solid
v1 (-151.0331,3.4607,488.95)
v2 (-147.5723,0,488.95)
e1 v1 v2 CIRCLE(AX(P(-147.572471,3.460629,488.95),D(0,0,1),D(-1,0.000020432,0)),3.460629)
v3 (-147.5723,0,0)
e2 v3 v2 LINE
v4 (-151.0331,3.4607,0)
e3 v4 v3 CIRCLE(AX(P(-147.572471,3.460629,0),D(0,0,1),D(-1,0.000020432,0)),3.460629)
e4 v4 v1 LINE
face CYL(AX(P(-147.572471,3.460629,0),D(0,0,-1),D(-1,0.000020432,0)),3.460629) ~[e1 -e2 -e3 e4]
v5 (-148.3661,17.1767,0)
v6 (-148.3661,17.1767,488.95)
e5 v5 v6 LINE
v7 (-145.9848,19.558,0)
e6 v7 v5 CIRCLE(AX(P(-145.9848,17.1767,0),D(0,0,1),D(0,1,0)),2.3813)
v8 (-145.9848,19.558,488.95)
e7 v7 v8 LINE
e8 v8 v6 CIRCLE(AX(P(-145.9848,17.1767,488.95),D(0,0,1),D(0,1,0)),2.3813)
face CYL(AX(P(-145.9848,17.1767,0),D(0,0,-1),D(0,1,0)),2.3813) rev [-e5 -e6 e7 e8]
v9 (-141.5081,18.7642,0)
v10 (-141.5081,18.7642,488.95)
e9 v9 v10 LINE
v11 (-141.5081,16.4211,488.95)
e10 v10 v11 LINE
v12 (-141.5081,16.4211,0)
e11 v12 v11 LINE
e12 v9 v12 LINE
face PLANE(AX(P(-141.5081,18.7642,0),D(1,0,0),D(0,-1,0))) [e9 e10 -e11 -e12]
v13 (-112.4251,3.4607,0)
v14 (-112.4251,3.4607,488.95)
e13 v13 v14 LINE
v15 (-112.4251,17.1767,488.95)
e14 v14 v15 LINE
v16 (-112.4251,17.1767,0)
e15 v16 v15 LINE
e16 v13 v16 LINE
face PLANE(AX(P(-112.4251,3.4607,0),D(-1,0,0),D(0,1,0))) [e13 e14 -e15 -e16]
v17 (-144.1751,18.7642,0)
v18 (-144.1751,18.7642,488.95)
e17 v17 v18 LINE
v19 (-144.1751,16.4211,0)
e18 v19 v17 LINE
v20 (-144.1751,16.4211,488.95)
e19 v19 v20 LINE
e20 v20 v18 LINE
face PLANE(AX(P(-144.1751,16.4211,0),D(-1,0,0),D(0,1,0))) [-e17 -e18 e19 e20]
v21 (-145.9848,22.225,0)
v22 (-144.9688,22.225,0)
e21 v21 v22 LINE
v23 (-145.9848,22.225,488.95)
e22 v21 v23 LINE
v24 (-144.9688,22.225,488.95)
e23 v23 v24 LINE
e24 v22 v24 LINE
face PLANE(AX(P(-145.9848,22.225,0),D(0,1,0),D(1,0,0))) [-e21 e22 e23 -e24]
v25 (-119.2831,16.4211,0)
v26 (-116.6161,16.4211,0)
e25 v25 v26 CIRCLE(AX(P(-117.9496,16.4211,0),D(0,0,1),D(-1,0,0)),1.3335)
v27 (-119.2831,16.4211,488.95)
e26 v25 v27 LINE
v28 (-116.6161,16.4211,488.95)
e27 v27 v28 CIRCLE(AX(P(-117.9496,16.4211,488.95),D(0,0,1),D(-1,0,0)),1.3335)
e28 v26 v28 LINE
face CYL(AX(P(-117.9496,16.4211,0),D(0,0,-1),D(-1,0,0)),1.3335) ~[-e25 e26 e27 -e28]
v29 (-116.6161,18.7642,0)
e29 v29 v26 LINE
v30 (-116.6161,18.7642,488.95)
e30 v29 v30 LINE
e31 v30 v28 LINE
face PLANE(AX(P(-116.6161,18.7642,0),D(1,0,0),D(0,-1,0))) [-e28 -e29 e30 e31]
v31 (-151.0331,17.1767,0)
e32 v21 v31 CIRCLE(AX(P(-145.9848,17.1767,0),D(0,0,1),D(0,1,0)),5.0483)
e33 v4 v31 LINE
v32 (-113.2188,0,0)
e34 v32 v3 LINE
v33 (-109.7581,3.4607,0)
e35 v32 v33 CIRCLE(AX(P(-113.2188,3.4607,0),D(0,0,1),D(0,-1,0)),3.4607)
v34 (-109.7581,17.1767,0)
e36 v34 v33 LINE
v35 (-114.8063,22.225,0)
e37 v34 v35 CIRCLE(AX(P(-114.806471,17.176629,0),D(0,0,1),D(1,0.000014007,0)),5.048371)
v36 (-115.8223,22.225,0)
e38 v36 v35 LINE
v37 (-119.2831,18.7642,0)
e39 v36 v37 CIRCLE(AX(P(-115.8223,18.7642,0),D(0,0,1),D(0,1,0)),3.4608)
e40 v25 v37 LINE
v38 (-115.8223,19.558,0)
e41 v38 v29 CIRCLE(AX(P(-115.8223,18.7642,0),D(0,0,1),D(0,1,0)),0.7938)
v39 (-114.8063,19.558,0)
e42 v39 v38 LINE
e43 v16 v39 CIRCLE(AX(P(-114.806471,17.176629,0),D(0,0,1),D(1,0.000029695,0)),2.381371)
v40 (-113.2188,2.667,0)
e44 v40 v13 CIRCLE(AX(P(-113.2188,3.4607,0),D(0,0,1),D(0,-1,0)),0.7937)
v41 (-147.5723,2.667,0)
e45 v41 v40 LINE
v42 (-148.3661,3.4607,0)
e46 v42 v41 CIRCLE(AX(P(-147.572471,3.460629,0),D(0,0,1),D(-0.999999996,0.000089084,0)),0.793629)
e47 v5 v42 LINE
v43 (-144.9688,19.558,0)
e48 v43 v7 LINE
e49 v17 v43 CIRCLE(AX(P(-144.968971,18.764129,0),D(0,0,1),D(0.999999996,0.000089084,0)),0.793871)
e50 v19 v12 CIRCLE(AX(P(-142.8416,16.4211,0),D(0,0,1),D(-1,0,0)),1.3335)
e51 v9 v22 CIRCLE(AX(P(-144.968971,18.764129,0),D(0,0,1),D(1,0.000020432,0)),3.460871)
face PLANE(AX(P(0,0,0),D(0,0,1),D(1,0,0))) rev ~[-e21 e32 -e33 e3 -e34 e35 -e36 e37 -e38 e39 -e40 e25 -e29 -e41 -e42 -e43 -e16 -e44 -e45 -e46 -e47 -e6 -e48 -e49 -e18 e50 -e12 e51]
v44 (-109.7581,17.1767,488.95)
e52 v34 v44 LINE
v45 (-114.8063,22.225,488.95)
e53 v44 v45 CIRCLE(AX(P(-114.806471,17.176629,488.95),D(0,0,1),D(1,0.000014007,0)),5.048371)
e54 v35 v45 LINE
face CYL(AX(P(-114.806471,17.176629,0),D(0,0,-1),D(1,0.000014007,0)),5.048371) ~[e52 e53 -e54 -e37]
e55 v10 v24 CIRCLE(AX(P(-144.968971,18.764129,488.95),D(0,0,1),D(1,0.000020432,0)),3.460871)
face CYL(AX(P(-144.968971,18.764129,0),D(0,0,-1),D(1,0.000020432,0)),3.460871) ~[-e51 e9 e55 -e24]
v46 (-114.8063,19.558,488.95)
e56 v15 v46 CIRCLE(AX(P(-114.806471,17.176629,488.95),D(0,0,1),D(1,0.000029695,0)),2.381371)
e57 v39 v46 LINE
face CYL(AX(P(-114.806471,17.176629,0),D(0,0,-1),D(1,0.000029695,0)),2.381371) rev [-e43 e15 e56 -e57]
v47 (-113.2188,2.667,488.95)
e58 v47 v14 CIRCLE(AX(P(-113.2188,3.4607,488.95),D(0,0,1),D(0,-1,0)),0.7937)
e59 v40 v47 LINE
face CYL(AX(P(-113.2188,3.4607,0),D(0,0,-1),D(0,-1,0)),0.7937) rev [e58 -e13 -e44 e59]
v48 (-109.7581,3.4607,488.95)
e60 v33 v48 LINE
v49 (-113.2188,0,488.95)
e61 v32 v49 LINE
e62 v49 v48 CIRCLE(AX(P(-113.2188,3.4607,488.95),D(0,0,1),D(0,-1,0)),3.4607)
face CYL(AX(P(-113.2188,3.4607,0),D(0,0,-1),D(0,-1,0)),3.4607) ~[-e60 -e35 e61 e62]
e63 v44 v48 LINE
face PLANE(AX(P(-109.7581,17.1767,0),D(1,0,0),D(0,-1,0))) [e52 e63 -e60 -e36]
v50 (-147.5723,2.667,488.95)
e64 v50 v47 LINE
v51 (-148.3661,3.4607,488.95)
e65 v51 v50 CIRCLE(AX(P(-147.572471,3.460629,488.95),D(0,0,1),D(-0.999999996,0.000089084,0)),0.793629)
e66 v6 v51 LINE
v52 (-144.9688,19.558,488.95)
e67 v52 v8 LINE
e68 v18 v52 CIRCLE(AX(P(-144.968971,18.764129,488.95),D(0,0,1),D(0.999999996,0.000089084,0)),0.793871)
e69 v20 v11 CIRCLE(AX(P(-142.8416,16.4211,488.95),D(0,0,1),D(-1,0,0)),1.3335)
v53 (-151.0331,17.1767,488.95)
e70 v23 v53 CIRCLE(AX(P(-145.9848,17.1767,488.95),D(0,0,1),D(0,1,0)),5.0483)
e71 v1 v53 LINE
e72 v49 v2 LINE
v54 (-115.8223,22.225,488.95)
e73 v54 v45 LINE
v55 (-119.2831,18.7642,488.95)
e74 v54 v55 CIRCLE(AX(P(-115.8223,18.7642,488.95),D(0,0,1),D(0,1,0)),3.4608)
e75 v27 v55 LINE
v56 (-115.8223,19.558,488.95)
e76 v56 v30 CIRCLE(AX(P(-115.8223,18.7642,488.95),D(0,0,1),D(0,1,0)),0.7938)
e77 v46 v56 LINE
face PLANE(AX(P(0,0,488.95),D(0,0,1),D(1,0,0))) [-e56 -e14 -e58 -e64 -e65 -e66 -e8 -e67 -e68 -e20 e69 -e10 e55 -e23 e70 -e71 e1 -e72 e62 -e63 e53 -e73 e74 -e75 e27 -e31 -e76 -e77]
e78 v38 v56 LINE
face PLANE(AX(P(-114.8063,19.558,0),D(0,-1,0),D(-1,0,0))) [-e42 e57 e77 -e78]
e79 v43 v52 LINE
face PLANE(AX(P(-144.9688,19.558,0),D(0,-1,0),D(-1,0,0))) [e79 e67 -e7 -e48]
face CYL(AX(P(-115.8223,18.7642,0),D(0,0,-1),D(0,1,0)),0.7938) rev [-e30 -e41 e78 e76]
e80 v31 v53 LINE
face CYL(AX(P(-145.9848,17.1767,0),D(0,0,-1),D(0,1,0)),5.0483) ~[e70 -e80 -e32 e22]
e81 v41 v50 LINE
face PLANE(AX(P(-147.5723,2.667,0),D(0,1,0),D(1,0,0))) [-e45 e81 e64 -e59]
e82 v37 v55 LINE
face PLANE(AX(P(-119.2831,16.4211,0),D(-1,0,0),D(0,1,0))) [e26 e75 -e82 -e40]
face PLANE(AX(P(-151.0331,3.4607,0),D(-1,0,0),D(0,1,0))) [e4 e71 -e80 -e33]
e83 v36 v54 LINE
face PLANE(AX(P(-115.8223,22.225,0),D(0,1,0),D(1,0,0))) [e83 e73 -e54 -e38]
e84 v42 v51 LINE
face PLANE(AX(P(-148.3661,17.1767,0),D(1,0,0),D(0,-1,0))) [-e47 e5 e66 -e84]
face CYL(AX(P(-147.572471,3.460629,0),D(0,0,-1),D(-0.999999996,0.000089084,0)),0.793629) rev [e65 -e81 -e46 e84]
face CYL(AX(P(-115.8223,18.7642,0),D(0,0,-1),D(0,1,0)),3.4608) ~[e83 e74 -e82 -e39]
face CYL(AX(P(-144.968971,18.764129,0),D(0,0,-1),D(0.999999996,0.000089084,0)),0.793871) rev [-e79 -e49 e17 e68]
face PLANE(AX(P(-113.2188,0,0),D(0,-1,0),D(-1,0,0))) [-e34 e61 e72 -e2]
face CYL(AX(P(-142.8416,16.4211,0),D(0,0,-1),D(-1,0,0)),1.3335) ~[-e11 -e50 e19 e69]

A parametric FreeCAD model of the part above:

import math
import FreeCAD as App
import Part
import Sketcher
Q = App.Units.Quantity

doc = App.newDocument("Part")
body = doc.addObject("PartDesign::Body", "Body")

# Sketch on XY plane
sketch1 = body.newObject("Sketcher::SketchObject", "Sketch")
sketch1.AttachmentSupport = (doc.getObject("XY_Plane"), [""])
sketch1.MapMode = "FlatFace"
sketch1.addGeometry(Part.LineSegment(App.Vector(-147.6, 0, 0), App.Vector(-113.2, 0, 0)), False)
sketch1.addGeometry(Part.ArcOfCircle(Part.Circle(App.Vector(-113.2, 3.5, 0), App.Vector(0, 0, 1), 3.5), math.radians(-90), math.radians(0)), False)
sketch1.addGeometry(Part.LineSegment(App.Vector(-109.8, 3.5, 0), App.Vector(-109.8, 17.2, 0)), False)
sketch1.addGeometry(Part.ArcOfCircle(Part.Circle(App.Vector(-114.8, 17.2, 0), App.Vector(0, 0, 1), 5), math.radians(0), math.radians(90)), False)
sketch1.addGeometry(Part.LineSegment(App.Vector(-114.8, 22.2, 0), App.Vector(-115.8, 22.2, 0)), False)
sketch1.addGeometry(Part.ArcOfCircle(Part.Circle(App.Vector(-115.8, 18.8, 0), App.Vector(0, 0, 1), 3.5), math.radians(90), math.radians(180)), False)
sketch1.addGeometry(Part.LineSegment(App.Vector(-119.3, 18.8, 0), App.Vector(-119.3, 16.4, 0)), False)
sketch1.addGeometry(Part.ArcOfCircle(Part.Circle(App.Vector(-117.9, 16.4, 0), App.Vector(0, 0, 1), 1.3), math.radians(180), math.radians(360)), False)
sketch1.addGeometry(Part.LineSegment(App.Vector(-116.6, 16.4, 0), App.Vector(-116.6, 18.8, 0)), False)
sketch1.addGeometry(Part.ArcOfCircle(Part.Circle(App.Vector(-115.8, 18.8, 0), App.Vector(0, 0, 1), 0.8), math.radians(90), math.radians(180)), False)
sketch1.addGeometry(Part.LineSegment(App.Vector(-115.8, 19.6, 0), App.Vector(-114.8, 19.6, 0)), False)
sketch1.addGeometry(Part.ArcOfCircle(Part.Circle(App.Vector(-114.8, 17.2, 0), App.Vector(0, 0, 1), 2.4), math.radians(0), math.radians(90)), False)
sketch1.addGeometry(Part.LineSegment(App.Vector(-112.4, 17.2, 0), App.Vector(-112.4, 3.5, 0)), False)
sketch1.addGeometry(Part.ArcOfCircle(Part.Circle(App.Vector(-113.2, 3.5, 0), App.Vector(0, 0, 1), 0.8), math.radians(-90), math.radians(0)), False)
sketch1.addGeometry(Part.LineSegment(App.Vector(-113.2, 2.7, 0), App.Vector(-147.6, 2.7, 0)), False)
sketch1.addGeometry(Part.ArcOfCircle(Part.Circle(App.Vector(-147.6, 3.5, 0), App.Vector(0, 0, 1), 0.8), math.radians(180), math.radians(270)), False)
sketch1.addGeometry(Part.LineSegment(App.Vector(-148.4, 3.5, 0), App.Vector(-148.4, 17.2, 0)), False)
sketch1.addGeometry(Part.ArcOfCircle(Part.Circle(App.Vector(-146, 17.2, 0), App.Vector(0, 0, 1), 2.4), math.radians(90), math.radians(180)), False)
sketch1.addGeometry(Part.LineSegment(App.Vector(-146, 19.6, 0), App.Vector(-145, 19.6, 0)), False)
sketch1.addGeometry(Part.ArcOfCircle(Part.Circle(App.Vector(-145, 18.8, 0), App.Vector(0, 0, 1), 0.8), math.radians(0), math.radians(90)), False)
sketch1.addGeometry(Part.LineSegment(App.Vector(-144.2, 18.8, 0), App.Vector(-144.2, 16.4, 0)), False)
sketch1.addGeometry(Part.ArcOfCircle(Part.Circle(App.Vector(-142.8, 16.4, 0), App.Vector(0, 0, 1), 1.3), math.radians(180), math.radians(360)), False)
sketch1.addGeometry(Part.LineSegment(App.Vector(-141.5, 16.4, 0), App.Vector(-141.5, 18.8, 0)), False)
sketch1.addGeometry(Part.ArcOfCircle(Part.Circle(App.Vector(-145, 18.8, 0), App.Vector(0, 0, 1), 3.5), math.radians(0), math.radians(90)), False)
sketch1.addGeometry(Part.LineSegment(App.Vector(-145, 22.2, 0), App.Vector(-146, 22.2, 0)), False)
sketch1.addGeometry(Part.ArcOfCircle(Part.Circle(App.Vector(-146, 17.2, 0), App.Vector(0, 0, 1), 5), math.radians(90), math.radians(180)), False)
sketch1.addGeometry(Part.LineSegment(App.Vector(-151, 17.2, 0), App.Vector(-151, 3.5, 0)), False)
sketch1.addGeometry(Part.ArcOfCircle(Part.Circle(App.Vector(-147.6, 3.5, 0), App.Vector(0, 0, 1), 3.5), math.radians(180), math.radians(270)), False)
sketch1.addConstraint(Sketcher.Constraint("Tangent", 0, 2, 1, 1))
sketch1.addConstraint(Sketcher.Constraint("Tangent", 1, 2, 2, 1))
sketch1.addConstraint(Sketcher.Constraint("Tangent", 2, 2, 3, 1))
sketch1.addConstraint(Sketcher.Constraint("Tangent", 3, 2, 4, 1))
sketch1.addConstraint(Sketcher.Constraint("Tangent", 4, 2, 5, 1))
sketch1.addConstraint(Sketcher.Constraint("Tangent", 5, 2, 6, 1))
sketch1.addConstraint(Sketcher.Constraint("Tangent", 6, 2, 7, 1))
sketch1.addConstraint(Sketcher.Constraint("Tangent", 7, 2, 8, 1))
sketch1.addConstraint(Sketcher.Constraint("Tangent", 8, 2, 9, 2))
sketch1.addConstraint(Sketcher.Constraint("Tangent", 9, 1, 10, 1))
sketch1.addConstraint(Sketcher.Constraint("Tangent", 10, 2, 11, 2))
sketch1.addConstraint(Sketcher.Constraint("Tangent", 11, 1, 12, 1))
sketch1.addConstraint(Sketcher.Constraint("Tangent", 12, 2, 13, 2))
sketch1.addConstraint(Sketcher.Constraint("Tangent", 13, 1, 14, 1))
sketch1.addConstraint(Sketcher.Constraint("Tangent", 14, 2, 15, 2))
sketch1.addConstraint(Sketcher.Constraint("Tangent", 15, 1, 16, 1))
sketch1.addConstraint(Sketcher.Constraint("Tangent", 16, 2, 17, 2))
sketch1.addConstraint(Sketcher.Constraint("Tangent", 17, 1, 18, 1))
sketch1.addConstraint(Sketcher.Constraint("Tangent", 18, 2, 19, 2))
sketch1.addConstraint(Sketcher.Constraint("Tangent", 19, 1, 20, 1))
sketch1.addConstraint(Sketcher.Constraint("Tangent", 20, 2, 21, 1))
sketch1.addConstraint(Sketcher.Constraint("Tangent", 21, 2, 22, 1))
sketch1.addConstraint(Sketcher.Constraint("Tangent", 22, 2, 23, 1))
sketch1.addConstraint(Sketcher.Constraint("Tangent", 23, 2, 24, 1))
sketch1.addConstraint(Sketcher.Constraint("Tangent", 24, 2, 25, 1))
sketch1.addConstraint(Sketcher.Constraint("Tangent", 25, 2, 26, 1))
sketch1.addConstraint(Sketcher.Constraint("Tangent", 26, 2, 27, 1))
sketch1.addConstraint(Sketcher.Constraint("Tangent", 27, 2, 0, 1))
sketch1.addConstraint(Sketcher.Constraint("Horizontal", 0))
sketch1.addConstraint(Sketcher.Constraint("Vertical", 2))
sketch1.addConstraint(Sketcher.Constraint("Horizontal", 4))
sketch1.addConstraint(Sketcher.Constraint("Vertical", 6))
sketch1.addConstraint(Sketcher.Constraint("Vertical", 8))
sketch1.addConstraint(Sketcher.Constraint("Horizontal", 10))
sketch1.addConstraint(Sketcher.Constraint("Vertical", 12))
sketch1.addConstraint(Sketcher.Constraint("Horizontal", 14))
sketch1.addConstraint(Sketcher.Constraint("Vertical", 16))
sketch1.addConstraint(Sketcher.Constraint("Horizontal", 18))
sketch1.addConstraint(Sketcher.Constraint("Vertical", 20))
sketch1.addConstraint(Sketcher.Constraint("Vertical", 22))
sketch1.addConstraint(Sketcher.Constraint("Horizontal", 24))
sketch1.addConstraint(Sketcher.Constraint("Vertical", 26))
sketch1.addConstraint(Sketcher.Constraint("Coincident", 9, 3, 5, 3))
sketch1.addConstraint(Sketcher.Constraint("Coincident", 11, 3, 3, 3))
sketch1.addConstraint(Sketcher.Constraint("Coincident", 13, 3, 1, 3))
sketch1.addConstraint(Sketcher.Constraint("Coincident", 23, 3, 19, 3))
sketch1.addConstraint(Sketcher.Constraint("Coincident", 25, 3, 17, 3))
sketch1.addConstraint(Sketcher.Constraint("Coincident", 27, 3, 15, 3))
sketch1.addConstraint(Sketcher.Constraint("Equal", 1, 5))
sketch1.addConstraint(Sketcher.Constraint("Equal", 13, 15))
sketch1.addConstraint(Sketcher.Constraint("Equal", 11, 17))
sketch1.addConstraint(Sketcher.Constraint("Equal", 15, 19))
sketch1.addConstraint(Sketcher.Constraint("PointOnObject", 0, 2, -1))
sketch1.addConstraint(Sketcher.Constraint("Horizontal", 11, 3, 17, 3))
sketch1.addConstraint(Sketcher.Constraint("Horizontal", 7, 3, 21, 3))
sketch1.addConstraint(Sketcher.Constraint("Equal", 10, 18))
sketch1.addConstraint(Sketcher.Constraint("Radius", 9, Q("0.031252 in")))
sketch1.addConstraint(Sketcher.Constraint("Radius", 11, Q("0.093748 in")))
sketch1.addConstraint(Sketcher.Constraint("DistanceX", 4, 2, 4, 1, Q("0.04 in")))
sketch1.addConstraint(Sketcher.Constraint("DistanceY", 2, 1, 2, 2, Q("0.54 in")))
sketch1.addConstraint(Sketcher.Constraint("Radius", 7, Q("0.0525 in")))
sketch1.addConstraint(Sketcher.Constraint("DistanceX", 15, 3, 5, 3, Q("1.25 in")))
sketch1.addConstraint(Sketcher.Constraint("DistanceY", 6, 2, 6, 1, Q("2.343 mm")))
sketch1.addConstraint(Sketcher.Constraint("DistanceX", 1, 3, -1, 1, Q("113.2188 mm")))
pad1 = body.newObject("PartDesign::Pad", "Pad")
pad1.Profile = sketch1
pad1.Length = Q("19.25 in")

doc.recompute()
